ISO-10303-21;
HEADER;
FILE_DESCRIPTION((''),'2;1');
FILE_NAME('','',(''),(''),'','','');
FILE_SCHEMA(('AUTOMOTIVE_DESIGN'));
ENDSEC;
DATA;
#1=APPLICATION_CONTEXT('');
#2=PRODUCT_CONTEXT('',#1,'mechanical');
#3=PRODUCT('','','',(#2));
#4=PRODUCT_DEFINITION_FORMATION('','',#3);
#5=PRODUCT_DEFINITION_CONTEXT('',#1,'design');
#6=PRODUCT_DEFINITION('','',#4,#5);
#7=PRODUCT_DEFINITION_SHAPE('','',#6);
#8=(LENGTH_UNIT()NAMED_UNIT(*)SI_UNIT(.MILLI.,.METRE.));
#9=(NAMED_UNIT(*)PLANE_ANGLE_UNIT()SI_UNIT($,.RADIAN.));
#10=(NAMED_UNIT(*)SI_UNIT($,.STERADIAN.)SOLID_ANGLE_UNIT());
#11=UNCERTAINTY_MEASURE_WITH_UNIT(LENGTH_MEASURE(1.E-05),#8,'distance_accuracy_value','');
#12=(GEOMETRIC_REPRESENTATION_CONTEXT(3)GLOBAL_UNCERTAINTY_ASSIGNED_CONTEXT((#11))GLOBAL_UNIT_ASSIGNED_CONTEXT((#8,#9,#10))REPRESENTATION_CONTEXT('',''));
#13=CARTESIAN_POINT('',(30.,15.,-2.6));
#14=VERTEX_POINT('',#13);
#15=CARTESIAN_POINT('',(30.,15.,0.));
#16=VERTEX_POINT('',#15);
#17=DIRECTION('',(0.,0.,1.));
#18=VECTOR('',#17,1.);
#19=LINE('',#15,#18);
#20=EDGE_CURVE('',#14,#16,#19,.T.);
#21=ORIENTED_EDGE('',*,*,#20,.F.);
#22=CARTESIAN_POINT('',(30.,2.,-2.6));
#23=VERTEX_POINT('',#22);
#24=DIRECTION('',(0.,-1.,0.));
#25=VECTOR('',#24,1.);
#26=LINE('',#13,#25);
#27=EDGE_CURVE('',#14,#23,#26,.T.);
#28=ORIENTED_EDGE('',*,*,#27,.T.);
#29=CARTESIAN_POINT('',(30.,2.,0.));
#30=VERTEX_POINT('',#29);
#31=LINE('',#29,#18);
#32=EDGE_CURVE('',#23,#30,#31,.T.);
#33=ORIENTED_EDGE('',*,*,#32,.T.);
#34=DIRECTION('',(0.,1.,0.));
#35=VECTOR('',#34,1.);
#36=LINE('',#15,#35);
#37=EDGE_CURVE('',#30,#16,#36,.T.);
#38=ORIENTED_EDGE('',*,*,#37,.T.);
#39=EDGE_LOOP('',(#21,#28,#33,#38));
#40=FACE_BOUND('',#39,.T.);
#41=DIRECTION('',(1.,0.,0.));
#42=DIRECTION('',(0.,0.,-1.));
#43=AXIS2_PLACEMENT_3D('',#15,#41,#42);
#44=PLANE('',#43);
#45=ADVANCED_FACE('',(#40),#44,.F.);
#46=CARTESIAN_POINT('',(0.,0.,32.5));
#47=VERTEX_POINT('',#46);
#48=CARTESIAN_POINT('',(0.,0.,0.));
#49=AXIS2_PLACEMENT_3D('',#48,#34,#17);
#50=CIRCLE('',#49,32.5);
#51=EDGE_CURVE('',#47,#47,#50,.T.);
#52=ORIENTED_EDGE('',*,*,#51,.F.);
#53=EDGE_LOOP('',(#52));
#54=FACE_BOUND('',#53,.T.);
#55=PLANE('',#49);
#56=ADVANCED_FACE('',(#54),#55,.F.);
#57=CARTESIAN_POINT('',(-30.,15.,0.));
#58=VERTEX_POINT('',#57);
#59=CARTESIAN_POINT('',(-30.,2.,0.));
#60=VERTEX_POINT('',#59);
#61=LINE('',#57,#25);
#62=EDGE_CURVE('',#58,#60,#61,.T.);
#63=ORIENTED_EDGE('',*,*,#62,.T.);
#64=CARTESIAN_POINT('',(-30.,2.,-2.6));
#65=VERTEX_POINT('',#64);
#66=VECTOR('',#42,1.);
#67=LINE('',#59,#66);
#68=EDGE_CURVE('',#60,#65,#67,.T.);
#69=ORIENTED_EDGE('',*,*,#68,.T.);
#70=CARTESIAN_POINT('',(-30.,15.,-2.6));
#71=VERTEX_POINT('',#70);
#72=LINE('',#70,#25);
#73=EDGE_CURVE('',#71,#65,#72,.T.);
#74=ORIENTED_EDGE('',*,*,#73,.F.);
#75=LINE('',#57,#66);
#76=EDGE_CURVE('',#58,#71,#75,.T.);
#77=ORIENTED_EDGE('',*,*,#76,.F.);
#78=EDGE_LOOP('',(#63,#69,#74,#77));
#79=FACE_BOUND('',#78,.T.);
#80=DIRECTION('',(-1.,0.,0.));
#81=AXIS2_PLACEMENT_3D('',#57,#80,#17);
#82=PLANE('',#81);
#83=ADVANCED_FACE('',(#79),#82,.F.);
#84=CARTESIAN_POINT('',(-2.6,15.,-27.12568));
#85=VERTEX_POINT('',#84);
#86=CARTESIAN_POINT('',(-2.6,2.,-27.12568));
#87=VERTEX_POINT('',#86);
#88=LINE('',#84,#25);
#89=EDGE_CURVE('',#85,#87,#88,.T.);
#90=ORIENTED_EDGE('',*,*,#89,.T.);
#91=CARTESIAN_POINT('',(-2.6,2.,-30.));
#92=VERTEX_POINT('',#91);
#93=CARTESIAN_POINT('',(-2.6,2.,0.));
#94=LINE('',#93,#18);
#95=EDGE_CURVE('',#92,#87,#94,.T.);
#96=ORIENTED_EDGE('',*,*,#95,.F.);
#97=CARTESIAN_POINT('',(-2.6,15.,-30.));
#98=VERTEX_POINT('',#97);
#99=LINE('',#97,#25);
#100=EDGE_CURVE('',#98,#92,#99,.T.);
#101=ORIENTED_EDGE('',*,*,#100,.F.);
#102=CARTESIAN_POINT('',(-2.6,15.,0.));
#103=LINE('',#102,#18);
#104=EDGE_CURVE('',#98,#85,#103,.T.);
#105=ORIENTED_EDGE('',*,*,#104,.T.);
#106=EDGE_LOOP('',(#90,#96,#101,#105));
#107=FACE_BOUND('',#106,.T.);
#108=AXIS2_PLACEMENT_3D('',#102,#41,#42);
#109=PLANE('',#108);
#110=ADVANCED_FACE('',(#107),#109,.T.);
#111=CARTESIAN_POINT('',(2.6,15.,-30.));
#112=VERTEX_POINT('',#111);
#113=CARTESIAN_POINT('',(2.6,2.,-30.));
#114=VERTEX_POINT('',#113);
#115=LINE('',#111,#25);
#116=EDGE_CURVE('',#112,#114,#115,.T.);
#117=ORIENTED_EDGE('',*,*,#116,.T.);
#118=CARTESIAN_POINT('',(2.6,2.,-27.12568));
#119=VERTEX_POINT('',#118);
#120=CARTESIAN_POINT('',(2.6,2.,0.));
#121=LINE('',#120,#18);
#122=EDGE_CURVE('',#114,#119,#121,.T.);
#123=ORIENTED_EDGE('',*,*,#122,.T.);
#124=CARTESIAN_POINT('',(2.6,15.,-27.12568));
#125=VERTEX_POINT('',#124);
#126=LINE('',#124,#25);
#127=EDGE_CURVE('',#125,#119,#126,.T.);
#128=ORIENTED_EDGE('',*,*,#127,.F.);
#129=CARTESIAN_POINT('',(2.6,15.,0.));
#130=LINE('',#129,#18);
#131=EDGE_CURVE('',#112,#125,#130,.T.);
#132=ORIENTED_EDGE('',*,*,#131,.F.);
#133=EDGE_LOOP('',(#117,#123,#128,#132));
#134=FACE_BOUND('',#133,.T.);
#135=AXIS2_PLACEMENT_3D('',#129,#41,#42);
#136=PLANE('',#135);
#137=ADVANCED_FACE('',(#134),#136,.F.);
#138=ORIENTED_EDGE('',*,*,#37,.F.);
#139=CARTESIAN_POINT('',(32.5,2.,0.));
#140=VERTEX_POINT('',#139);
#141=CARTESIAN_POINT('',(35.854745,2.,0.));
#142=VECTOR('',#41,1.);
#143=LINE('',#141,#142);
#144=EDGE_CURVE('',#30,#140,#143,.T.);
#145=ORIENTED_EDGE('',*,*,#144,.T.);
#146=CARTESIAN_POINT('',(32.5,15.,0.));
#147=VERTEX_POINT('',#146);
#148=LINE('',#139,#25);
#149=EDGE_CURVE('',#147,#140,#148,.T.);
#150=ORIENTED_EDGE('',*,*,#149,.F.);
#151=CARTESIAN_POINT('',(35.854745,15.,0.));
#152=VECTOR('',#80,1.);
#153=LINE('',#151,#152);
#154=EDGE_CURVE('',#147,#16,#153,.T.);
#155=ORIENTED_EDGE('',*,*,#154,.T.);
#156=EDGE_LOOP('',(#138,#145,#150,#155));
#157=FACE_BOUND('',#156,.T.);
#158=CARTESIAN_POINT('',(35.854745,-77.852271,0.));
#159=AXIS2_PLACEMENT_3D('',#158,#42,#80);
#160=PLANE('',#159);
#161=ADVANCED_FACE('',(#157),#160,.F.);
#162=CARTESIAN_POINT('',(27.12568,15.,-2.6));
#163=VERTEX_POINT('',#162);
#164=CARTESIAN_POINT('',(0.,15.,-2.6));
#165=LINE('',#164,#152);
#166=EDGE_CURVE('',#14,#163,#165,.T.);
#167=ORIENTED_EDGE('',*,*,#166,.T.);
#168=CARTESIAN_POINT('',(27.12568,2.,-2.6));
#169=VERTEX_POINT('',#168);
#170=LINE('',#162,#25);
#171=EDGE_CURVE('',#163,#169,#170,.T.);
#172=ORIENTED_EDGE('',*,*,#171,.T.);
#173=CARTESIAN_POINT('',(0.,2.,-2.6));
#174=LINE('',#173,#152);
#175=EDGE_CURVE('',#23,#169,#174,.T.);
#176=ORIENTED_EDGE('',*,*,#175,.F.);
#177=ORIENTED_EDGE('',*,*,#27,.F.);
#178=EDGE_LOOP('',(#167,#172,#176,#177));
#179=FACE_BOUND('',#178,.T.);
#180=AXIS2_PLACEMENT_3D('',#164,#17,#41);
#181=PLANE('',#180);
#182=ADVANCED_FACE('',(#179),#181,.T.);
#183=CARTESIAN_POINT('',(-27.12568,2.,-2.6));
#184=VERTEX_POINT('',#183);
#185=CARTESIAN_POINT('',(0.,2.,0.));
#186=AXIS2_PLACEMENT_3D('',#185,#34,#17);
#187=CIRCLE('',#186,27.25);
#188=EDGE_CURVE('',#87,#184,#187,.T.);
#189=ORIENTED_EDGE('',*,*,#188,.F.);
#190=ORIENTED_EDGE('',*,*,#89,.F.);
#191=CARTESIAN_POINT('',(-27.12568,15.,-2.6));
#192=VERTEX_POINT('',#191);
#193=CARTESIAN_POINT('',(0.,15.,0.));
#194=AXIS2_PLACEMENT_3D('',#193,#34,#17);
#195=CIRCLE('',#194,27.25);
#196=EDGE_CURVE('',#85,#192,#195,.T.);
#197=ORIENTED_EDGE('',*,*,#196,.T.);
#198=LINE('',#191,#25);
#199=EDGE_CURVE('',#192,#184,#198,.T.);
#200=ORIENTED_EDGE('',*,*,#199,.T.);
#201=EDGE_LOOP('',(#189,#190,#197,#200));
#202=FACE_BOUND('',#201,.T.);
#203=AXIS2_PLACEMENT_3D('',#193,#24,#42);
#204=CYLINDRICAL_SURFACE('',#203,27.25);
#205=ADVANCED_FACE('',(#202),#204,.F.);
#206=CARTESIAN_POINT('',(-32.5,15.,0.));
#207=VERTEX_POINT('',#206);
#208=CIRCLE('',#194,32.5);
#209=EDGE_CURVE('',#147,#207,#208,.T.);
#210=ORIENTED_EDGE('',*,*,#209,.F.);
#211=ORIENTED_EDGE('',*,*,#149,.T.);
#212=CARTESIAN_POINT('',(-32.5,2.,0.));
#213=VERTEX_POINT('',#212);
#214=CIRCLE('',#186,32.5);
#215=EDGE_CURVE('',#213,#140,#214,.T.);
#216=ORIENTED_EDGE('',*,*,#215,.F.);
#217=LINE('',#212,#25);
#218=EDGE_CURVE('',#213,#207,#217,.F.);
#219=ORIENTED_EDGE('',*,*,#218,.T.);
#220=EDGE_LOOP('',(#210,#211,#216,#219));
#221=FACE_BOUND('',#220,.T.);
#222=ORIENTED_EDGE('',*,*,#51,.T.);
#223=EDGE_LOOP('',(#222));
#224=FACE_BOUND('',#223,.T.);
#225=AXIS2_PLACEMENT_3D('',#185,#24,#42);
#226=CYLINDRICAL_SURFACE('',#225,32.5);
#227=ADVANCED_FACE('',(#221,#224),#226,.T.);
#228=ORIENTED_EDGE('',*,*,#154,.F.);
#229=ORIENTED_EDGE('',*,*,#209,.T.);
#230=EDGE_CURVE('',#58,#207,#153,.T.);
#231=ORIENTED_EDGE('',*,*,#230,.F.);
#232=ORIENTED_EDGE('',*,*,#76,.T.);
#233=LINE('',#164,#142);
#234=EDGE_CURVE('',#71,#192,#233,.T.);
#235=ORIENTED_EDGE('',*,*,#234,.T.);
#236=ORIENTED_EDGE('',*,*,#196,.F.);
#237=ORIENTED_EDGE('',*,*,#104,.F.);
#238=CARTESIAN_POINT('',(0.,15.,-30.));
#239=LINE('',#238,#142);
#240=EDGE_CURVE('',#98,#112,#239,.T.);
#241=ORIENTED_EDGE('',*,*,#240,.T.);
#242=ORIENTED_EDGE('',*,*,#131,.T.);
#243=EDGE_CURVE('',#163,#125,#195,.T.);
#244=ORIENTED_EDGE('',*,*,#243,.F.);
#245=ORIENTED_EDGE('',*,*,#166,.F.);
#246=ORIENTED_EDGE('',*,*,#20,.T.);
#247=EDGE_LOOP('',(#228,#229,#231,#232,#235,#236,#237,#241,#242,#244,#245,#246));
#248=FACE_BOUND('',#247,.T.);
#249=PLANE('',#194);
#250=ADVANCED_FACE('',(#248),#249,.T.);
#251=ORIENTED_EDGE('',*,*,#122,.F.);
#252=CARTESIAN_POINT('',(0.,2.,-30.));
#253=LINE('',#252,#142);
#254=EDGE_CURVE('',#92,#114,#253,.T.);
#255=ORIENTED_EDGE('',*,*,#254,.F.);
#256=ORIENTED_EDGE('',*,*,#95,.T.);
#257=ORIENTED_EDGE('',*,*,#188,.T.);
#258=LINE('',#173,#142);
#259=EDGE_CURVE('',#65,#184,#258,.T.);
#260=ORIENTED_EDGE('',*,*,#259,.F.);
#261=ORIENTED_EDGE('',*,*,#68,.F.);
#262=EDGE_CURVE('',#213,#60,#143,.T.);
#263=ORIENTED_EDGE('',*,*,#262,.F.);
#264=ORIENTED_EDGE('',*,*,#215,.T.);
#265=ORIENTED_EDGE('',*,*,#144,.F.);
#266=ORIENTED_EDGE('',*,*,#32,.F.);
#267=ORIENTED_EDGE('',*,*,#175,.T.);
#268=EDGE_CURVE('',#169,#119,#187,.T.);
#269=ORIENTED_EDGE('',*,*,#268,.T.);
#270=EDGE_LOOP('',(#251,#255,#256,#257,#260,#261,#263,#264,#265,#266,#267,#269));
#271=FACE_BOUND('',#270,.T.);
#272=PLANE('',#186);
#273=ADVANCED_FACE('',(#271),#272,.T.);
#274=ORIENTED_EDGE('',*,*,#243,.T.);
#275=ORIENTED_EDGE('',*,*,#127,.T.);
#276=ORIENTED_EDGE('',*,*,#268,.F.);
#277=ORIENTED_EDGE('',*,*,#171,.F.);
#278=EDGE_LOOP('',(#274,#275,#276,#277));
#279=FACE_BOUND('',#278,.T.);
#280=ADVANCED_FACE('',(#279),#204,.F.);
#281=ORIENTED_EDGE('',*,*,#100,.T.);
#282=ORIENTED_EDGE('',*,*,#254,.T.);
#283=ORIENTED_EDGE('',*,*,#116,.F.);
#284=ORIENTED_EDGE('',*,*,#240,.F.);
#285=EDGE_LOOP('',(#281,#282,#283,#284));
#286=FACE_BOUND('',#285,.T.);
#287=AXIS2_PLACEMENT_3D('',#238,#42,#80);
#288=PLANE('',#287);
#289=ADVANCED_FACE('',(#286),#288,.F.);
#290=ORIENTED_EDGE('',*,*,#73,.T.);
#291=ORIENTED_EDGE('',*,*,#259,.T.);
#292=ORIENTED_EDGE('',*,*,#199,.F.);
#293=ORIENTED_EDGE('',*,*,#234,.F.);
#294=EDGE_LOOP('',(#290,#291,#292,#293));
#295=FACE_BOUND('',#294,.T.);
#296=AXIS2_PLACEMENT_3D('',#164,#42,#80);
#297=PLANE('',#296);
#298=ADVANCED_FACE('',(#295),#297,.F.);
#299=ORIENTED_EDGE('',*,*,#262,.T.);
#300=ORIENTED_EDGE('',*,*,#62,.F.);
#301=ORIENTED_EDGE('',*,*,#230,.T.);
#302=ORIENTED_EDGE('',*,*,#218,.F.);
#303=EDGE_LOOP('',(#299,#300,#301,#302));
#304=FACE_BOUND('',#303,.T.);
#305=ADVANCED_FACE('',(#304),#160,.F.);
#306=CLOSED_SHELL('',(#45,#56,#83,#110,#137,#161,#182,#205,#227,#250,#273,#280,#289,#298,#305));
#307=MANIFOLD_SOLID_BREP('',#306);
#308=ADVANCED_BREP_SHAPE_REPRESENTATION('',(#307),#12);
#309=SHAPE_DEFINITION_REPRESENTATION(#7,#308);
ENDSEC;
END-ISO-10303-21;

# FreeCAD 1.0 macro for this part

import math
import FreeCAD as App
import Part
import Sketcher

V = App.Vector
Q = App.Units.Quantity


def add_polygon(sketch, points):
    """Adds a closed chain of lines whose ends are joined by coincident constraints."""
    first, n = sketch.GeometryCount, len(points)
    for a, b in zip(points, points[1:] + points[:1]):
        sketch.addGeometry(Part.LineSegment(App.Vector(*a, 0), App.Vector(*b, 0)), False)
    for i in range(n):
        sketch.addConstraint(Sketcher.Constraint("Coincident", first + i, 2, first + (i + 1) % n, 1))

doc = App.newDocument("Part")
body = doc.addObject("PartDesign::Body", "Body")

# Sketch on XZ plane
sketch1 = doc.addObject("Sketcher::SketchObject", "Sketch")
body.addObject(sketch1)
sketch1.AttachmentSupport = (doc.XZ_Plane, [""])
sketch1.MapMode = "FlatFace"
sketch1.addGeometry(Part.Circle(V(0, 0, 0), V(0, 0, 1), 32), False)
sketch1.addConstraint([
    Sketcher.Constraint("Coincident", 0, 3, -1, 1),
    Sketcher.Constraint("Diameter", 0, Q("65 mm")),
])
pad1 = doc.addObject("PartDesign::Pad", "Pad")
body.addObject(pad1)
pad1.Profile = sketch1
pad1.Length = 2
pad1.Reversed = True

# Sketch on XZ plane
sketch2 = doc.addObject("Sketcher::SketchObject", "Sketch001")
body.addObject(sketch2)
sketch2.AttachmentSupport = (doc.XZ_Plane, [""])
sketch2.MapMode = "FlatFace"
sketch2.AttachmentOffset = App.Placement(V(0, 0, -2), App.Rotation())
sketch2.addGeometry([
    Part.Circle(V(0, 0, 0), V(0, 0, 1), 32.5),  # 0
    Part.ArcOfCircle(Part.Circle(V(0, 0, 0), V(0, 0, 1), 27.3), math.radians(5), math.radians(85)),  # 1
    Part.LineSegment(V(2.6, 27.1, 0), V(2.6, 30, 0)),  # 2
    Part.LineSegment(V(2.6, 30, 0), V(-2.6, 30, 0)),  # 3
    Part.LineSegment(V(-2.6, 30, 0), V(-2.6, 27.1, 0)),  # 4
    Part.ArcOfCircle(Part.Circle(V(0, 0, 0), V(0, 0, 1), 27.3), math.radians(95), math.radians(175)),  # 5
    Part.LineSegment(V(-27.1, 2.6, 0), V(-30, 2.6, 0)),  # 6
    Part.LineSegment(V(-30, 2.6, 0), V(-30, -2.6, 0)),  # 7
    Part.LineSegment(V(-30, -2.6, 0), V(-27.1, -2.6, 0)),  # 8
    Part.ArcOfCircle(Part.Circle(V(0, 0, 0), V(0, 0, 1), 27.3), math.radians(-175), math.radians(-95)),  # 9
    Part.LineSegment(V(-2.6, -27.1, 0), V(-2.6, -30, 0)),  # 10
    Part.LineSegment(V(-2.6, -30, 0), V(2.6, -30, 0)),  # 11
    Part.LineSegment(V(2.6, -30, 0), V(2.6, -27.1, 0)),  # 12
    Part.ArcOfCircle(Part.Circle(V(0, 0, 0), V(0, 0, 1), 27.3), math.radians(-85), math.radians(-5)),  # 13
    Part.LineSegment(V(27.1, -2.6, 0), V(30, -2.6, 0)),  # 14
    Part.LineSegment(V(30, -2.6, 0), V(30, 2.6, 0)),  # 15
    Part.LineSegment(V(30, 2.6, 0), V(27.1, 2.6, 0)),  # 16
], False)
sketch2.addConstraint([
    Sketcher.Constraint("Coincident", 1, 2, 2, 1),
    Sketcher.Constraint("Coincident", 2, 2, 3, 1),
    Sketcher.Constraint("Coincident", 3, 2, 4, 1),
    Sketcher.Constraint("Coincident", 4, 2, 5, 1),
    Sketcher.Constraint("Coincident", 5, 2, 6, 1),
    Sketcher.Constraint("Coincident", 6, 2, 7, 1),
    Sketcher.Constraint("Coincident", 7, 2, 8, 1),
    Sketcher.Constraint("Coincident", 8, 2, 9, 1),
    Sketcher.Constraint("Coincident", 9, 2, 10, 1),
    Sketcher.Constraint("Coincident", 10, 2, 11, 1),
    Sketcher.Constraint("Coincident", 11, 2, 12, 1),
    Sketcher.Constraint("Coincident", 12, 2, 13, 1),
    Sketcher.Constraint("Coincident", 13, 2, 14, 1),
    Sketcher.Constraint("Coincident", 14, 2, 15, 1),
    Sketcher.Constraint("Coincident", 15, 2, 16, 1),
    Sketcher.Constraint("Coincident", 16, 2, 1, 1),
    Sketcher.Constraint("Vertical", 2),
    Sketcher.Constraint("Horizontal", 3),
    Sketcher.Constraint("Vertical", 4),
    Sketcher.Constraint("Horizontal", 6),
    Sketcher.Constraint("Vertical", 7),
    Sketcher.Constraint("Horizontal", 8),
    Sketcher.Constraint("Vertical", 10),
    Sketcher.Constraint("Horizontal", 11),
    Sketcher.Constraint("Vertical", 12),
    Sketcher.Constraint("Horizontal", 14),
    Sketcher.Constraint("Vertical", 15),
    Sketcher.Constraint("Horizontal", 16),
    Sketcher.Constraint("Coincident", 0, 3, -1, 1),
    Sketcher.Constraint("Coincident", 1, 3, -1, 1),
    Sketcher.Constraint("Coincident", 5, 3, -1, 1),
    Sketcher.Constraint("Coincident", 9, 3, -1, 1),
    Sketcher.Constraint("Coincident", 13, 3, -1, 1),
    Sketcher.Constraint("Equal", 1, 5),
    Sketcher.Constraint("Equal", 5, 9),
    Sketcher.Constraint("Equal", 9, 13),
    Sketcher.Constraint("Symmetric", 2, 2, 10, 2, -1, 1),
    Sketcher.Constraint("Symmetric", 6, 2, 14, 2, -1, 1),
    Sketcher.Constraint("Horizontal", 1, 2, 4, 2),
    Sketcher.Constraint("Horizontal", 9, 2, 12, 2),
    Sketcher.Constraint("Horizontal", 8, 2, 13, 2),
    Sketcher.Constraint("Horizontal", 6, 2, 15, 2),
    Sketcher.Constraint("Equal", 16, 2),
    Sketcher.Constraint("Equal", 11, 7),
    Sketcher.Constraint("Diameter", 0, Q("65 mm")),
    Sketcher.Constraint("Radius", 1, Q("27.25 mm")),
    Sketcher.Constraint("DistanceX", 3, 2, 3, 1, Q("5.2 mm")),
    Sketcher.Constraint("DistanceY", -1, 1, 2, 2, Q("30 mm")),
])
pad2 = doc.addObject("PartDesign::Pad", "Pad001")
body.addObject(pad2)
pad2.Profile = sketch2
pad2.Length = 13
pad2.Reversed = True

# Sketch on XZ plane
sketch3 = doc.addObject("Sketcher::SketchObject", "Sketch002")
body.addObject(sketch3)
sketch3.AttachmentSupport = (doc.XZ_Plane, [""])
sketch3.MapMode = "FlatFace"
sketch3.AttachmentOffset = App.Placement(V(0, 0, -15), App.Rotation())
add_polygon(sketch3, [(-36, 0), (-36, 36), (36, 36), (36, 0)])  # lines 0-3
sketch3.addConstraint([
    Sketcher.Constraint("Vertical", 0),
    Sketcher.Constraint("Horizontal", 1),
    Sketcher.Constraint("Vertical", 2),
    Sketcher.Constraint("Horizontal", 3),
    Sketcher.Constraint("PointOnObject", 2, 2, -1),
    Sketcher.Constraint("DistanceX", 1, 1, 1, 2, Q("71.390072 mm")),
    Sketcher.Constraint("DistanceY", 0, 1, 0, 2, Q("35.774891 mm")),
    Sketcher.Constraint("DistanceX", 0, 2, -1, 1, Q("35.535327 mm")),
])
pocket1 = doc.addObject("PartDesign::Pocket", "Pocket")
body.addObject(pocket1)
pocket1.Profile = sketch3
pocket1.Length = 13
pocket1.Reversed = True

doc.recompute()
